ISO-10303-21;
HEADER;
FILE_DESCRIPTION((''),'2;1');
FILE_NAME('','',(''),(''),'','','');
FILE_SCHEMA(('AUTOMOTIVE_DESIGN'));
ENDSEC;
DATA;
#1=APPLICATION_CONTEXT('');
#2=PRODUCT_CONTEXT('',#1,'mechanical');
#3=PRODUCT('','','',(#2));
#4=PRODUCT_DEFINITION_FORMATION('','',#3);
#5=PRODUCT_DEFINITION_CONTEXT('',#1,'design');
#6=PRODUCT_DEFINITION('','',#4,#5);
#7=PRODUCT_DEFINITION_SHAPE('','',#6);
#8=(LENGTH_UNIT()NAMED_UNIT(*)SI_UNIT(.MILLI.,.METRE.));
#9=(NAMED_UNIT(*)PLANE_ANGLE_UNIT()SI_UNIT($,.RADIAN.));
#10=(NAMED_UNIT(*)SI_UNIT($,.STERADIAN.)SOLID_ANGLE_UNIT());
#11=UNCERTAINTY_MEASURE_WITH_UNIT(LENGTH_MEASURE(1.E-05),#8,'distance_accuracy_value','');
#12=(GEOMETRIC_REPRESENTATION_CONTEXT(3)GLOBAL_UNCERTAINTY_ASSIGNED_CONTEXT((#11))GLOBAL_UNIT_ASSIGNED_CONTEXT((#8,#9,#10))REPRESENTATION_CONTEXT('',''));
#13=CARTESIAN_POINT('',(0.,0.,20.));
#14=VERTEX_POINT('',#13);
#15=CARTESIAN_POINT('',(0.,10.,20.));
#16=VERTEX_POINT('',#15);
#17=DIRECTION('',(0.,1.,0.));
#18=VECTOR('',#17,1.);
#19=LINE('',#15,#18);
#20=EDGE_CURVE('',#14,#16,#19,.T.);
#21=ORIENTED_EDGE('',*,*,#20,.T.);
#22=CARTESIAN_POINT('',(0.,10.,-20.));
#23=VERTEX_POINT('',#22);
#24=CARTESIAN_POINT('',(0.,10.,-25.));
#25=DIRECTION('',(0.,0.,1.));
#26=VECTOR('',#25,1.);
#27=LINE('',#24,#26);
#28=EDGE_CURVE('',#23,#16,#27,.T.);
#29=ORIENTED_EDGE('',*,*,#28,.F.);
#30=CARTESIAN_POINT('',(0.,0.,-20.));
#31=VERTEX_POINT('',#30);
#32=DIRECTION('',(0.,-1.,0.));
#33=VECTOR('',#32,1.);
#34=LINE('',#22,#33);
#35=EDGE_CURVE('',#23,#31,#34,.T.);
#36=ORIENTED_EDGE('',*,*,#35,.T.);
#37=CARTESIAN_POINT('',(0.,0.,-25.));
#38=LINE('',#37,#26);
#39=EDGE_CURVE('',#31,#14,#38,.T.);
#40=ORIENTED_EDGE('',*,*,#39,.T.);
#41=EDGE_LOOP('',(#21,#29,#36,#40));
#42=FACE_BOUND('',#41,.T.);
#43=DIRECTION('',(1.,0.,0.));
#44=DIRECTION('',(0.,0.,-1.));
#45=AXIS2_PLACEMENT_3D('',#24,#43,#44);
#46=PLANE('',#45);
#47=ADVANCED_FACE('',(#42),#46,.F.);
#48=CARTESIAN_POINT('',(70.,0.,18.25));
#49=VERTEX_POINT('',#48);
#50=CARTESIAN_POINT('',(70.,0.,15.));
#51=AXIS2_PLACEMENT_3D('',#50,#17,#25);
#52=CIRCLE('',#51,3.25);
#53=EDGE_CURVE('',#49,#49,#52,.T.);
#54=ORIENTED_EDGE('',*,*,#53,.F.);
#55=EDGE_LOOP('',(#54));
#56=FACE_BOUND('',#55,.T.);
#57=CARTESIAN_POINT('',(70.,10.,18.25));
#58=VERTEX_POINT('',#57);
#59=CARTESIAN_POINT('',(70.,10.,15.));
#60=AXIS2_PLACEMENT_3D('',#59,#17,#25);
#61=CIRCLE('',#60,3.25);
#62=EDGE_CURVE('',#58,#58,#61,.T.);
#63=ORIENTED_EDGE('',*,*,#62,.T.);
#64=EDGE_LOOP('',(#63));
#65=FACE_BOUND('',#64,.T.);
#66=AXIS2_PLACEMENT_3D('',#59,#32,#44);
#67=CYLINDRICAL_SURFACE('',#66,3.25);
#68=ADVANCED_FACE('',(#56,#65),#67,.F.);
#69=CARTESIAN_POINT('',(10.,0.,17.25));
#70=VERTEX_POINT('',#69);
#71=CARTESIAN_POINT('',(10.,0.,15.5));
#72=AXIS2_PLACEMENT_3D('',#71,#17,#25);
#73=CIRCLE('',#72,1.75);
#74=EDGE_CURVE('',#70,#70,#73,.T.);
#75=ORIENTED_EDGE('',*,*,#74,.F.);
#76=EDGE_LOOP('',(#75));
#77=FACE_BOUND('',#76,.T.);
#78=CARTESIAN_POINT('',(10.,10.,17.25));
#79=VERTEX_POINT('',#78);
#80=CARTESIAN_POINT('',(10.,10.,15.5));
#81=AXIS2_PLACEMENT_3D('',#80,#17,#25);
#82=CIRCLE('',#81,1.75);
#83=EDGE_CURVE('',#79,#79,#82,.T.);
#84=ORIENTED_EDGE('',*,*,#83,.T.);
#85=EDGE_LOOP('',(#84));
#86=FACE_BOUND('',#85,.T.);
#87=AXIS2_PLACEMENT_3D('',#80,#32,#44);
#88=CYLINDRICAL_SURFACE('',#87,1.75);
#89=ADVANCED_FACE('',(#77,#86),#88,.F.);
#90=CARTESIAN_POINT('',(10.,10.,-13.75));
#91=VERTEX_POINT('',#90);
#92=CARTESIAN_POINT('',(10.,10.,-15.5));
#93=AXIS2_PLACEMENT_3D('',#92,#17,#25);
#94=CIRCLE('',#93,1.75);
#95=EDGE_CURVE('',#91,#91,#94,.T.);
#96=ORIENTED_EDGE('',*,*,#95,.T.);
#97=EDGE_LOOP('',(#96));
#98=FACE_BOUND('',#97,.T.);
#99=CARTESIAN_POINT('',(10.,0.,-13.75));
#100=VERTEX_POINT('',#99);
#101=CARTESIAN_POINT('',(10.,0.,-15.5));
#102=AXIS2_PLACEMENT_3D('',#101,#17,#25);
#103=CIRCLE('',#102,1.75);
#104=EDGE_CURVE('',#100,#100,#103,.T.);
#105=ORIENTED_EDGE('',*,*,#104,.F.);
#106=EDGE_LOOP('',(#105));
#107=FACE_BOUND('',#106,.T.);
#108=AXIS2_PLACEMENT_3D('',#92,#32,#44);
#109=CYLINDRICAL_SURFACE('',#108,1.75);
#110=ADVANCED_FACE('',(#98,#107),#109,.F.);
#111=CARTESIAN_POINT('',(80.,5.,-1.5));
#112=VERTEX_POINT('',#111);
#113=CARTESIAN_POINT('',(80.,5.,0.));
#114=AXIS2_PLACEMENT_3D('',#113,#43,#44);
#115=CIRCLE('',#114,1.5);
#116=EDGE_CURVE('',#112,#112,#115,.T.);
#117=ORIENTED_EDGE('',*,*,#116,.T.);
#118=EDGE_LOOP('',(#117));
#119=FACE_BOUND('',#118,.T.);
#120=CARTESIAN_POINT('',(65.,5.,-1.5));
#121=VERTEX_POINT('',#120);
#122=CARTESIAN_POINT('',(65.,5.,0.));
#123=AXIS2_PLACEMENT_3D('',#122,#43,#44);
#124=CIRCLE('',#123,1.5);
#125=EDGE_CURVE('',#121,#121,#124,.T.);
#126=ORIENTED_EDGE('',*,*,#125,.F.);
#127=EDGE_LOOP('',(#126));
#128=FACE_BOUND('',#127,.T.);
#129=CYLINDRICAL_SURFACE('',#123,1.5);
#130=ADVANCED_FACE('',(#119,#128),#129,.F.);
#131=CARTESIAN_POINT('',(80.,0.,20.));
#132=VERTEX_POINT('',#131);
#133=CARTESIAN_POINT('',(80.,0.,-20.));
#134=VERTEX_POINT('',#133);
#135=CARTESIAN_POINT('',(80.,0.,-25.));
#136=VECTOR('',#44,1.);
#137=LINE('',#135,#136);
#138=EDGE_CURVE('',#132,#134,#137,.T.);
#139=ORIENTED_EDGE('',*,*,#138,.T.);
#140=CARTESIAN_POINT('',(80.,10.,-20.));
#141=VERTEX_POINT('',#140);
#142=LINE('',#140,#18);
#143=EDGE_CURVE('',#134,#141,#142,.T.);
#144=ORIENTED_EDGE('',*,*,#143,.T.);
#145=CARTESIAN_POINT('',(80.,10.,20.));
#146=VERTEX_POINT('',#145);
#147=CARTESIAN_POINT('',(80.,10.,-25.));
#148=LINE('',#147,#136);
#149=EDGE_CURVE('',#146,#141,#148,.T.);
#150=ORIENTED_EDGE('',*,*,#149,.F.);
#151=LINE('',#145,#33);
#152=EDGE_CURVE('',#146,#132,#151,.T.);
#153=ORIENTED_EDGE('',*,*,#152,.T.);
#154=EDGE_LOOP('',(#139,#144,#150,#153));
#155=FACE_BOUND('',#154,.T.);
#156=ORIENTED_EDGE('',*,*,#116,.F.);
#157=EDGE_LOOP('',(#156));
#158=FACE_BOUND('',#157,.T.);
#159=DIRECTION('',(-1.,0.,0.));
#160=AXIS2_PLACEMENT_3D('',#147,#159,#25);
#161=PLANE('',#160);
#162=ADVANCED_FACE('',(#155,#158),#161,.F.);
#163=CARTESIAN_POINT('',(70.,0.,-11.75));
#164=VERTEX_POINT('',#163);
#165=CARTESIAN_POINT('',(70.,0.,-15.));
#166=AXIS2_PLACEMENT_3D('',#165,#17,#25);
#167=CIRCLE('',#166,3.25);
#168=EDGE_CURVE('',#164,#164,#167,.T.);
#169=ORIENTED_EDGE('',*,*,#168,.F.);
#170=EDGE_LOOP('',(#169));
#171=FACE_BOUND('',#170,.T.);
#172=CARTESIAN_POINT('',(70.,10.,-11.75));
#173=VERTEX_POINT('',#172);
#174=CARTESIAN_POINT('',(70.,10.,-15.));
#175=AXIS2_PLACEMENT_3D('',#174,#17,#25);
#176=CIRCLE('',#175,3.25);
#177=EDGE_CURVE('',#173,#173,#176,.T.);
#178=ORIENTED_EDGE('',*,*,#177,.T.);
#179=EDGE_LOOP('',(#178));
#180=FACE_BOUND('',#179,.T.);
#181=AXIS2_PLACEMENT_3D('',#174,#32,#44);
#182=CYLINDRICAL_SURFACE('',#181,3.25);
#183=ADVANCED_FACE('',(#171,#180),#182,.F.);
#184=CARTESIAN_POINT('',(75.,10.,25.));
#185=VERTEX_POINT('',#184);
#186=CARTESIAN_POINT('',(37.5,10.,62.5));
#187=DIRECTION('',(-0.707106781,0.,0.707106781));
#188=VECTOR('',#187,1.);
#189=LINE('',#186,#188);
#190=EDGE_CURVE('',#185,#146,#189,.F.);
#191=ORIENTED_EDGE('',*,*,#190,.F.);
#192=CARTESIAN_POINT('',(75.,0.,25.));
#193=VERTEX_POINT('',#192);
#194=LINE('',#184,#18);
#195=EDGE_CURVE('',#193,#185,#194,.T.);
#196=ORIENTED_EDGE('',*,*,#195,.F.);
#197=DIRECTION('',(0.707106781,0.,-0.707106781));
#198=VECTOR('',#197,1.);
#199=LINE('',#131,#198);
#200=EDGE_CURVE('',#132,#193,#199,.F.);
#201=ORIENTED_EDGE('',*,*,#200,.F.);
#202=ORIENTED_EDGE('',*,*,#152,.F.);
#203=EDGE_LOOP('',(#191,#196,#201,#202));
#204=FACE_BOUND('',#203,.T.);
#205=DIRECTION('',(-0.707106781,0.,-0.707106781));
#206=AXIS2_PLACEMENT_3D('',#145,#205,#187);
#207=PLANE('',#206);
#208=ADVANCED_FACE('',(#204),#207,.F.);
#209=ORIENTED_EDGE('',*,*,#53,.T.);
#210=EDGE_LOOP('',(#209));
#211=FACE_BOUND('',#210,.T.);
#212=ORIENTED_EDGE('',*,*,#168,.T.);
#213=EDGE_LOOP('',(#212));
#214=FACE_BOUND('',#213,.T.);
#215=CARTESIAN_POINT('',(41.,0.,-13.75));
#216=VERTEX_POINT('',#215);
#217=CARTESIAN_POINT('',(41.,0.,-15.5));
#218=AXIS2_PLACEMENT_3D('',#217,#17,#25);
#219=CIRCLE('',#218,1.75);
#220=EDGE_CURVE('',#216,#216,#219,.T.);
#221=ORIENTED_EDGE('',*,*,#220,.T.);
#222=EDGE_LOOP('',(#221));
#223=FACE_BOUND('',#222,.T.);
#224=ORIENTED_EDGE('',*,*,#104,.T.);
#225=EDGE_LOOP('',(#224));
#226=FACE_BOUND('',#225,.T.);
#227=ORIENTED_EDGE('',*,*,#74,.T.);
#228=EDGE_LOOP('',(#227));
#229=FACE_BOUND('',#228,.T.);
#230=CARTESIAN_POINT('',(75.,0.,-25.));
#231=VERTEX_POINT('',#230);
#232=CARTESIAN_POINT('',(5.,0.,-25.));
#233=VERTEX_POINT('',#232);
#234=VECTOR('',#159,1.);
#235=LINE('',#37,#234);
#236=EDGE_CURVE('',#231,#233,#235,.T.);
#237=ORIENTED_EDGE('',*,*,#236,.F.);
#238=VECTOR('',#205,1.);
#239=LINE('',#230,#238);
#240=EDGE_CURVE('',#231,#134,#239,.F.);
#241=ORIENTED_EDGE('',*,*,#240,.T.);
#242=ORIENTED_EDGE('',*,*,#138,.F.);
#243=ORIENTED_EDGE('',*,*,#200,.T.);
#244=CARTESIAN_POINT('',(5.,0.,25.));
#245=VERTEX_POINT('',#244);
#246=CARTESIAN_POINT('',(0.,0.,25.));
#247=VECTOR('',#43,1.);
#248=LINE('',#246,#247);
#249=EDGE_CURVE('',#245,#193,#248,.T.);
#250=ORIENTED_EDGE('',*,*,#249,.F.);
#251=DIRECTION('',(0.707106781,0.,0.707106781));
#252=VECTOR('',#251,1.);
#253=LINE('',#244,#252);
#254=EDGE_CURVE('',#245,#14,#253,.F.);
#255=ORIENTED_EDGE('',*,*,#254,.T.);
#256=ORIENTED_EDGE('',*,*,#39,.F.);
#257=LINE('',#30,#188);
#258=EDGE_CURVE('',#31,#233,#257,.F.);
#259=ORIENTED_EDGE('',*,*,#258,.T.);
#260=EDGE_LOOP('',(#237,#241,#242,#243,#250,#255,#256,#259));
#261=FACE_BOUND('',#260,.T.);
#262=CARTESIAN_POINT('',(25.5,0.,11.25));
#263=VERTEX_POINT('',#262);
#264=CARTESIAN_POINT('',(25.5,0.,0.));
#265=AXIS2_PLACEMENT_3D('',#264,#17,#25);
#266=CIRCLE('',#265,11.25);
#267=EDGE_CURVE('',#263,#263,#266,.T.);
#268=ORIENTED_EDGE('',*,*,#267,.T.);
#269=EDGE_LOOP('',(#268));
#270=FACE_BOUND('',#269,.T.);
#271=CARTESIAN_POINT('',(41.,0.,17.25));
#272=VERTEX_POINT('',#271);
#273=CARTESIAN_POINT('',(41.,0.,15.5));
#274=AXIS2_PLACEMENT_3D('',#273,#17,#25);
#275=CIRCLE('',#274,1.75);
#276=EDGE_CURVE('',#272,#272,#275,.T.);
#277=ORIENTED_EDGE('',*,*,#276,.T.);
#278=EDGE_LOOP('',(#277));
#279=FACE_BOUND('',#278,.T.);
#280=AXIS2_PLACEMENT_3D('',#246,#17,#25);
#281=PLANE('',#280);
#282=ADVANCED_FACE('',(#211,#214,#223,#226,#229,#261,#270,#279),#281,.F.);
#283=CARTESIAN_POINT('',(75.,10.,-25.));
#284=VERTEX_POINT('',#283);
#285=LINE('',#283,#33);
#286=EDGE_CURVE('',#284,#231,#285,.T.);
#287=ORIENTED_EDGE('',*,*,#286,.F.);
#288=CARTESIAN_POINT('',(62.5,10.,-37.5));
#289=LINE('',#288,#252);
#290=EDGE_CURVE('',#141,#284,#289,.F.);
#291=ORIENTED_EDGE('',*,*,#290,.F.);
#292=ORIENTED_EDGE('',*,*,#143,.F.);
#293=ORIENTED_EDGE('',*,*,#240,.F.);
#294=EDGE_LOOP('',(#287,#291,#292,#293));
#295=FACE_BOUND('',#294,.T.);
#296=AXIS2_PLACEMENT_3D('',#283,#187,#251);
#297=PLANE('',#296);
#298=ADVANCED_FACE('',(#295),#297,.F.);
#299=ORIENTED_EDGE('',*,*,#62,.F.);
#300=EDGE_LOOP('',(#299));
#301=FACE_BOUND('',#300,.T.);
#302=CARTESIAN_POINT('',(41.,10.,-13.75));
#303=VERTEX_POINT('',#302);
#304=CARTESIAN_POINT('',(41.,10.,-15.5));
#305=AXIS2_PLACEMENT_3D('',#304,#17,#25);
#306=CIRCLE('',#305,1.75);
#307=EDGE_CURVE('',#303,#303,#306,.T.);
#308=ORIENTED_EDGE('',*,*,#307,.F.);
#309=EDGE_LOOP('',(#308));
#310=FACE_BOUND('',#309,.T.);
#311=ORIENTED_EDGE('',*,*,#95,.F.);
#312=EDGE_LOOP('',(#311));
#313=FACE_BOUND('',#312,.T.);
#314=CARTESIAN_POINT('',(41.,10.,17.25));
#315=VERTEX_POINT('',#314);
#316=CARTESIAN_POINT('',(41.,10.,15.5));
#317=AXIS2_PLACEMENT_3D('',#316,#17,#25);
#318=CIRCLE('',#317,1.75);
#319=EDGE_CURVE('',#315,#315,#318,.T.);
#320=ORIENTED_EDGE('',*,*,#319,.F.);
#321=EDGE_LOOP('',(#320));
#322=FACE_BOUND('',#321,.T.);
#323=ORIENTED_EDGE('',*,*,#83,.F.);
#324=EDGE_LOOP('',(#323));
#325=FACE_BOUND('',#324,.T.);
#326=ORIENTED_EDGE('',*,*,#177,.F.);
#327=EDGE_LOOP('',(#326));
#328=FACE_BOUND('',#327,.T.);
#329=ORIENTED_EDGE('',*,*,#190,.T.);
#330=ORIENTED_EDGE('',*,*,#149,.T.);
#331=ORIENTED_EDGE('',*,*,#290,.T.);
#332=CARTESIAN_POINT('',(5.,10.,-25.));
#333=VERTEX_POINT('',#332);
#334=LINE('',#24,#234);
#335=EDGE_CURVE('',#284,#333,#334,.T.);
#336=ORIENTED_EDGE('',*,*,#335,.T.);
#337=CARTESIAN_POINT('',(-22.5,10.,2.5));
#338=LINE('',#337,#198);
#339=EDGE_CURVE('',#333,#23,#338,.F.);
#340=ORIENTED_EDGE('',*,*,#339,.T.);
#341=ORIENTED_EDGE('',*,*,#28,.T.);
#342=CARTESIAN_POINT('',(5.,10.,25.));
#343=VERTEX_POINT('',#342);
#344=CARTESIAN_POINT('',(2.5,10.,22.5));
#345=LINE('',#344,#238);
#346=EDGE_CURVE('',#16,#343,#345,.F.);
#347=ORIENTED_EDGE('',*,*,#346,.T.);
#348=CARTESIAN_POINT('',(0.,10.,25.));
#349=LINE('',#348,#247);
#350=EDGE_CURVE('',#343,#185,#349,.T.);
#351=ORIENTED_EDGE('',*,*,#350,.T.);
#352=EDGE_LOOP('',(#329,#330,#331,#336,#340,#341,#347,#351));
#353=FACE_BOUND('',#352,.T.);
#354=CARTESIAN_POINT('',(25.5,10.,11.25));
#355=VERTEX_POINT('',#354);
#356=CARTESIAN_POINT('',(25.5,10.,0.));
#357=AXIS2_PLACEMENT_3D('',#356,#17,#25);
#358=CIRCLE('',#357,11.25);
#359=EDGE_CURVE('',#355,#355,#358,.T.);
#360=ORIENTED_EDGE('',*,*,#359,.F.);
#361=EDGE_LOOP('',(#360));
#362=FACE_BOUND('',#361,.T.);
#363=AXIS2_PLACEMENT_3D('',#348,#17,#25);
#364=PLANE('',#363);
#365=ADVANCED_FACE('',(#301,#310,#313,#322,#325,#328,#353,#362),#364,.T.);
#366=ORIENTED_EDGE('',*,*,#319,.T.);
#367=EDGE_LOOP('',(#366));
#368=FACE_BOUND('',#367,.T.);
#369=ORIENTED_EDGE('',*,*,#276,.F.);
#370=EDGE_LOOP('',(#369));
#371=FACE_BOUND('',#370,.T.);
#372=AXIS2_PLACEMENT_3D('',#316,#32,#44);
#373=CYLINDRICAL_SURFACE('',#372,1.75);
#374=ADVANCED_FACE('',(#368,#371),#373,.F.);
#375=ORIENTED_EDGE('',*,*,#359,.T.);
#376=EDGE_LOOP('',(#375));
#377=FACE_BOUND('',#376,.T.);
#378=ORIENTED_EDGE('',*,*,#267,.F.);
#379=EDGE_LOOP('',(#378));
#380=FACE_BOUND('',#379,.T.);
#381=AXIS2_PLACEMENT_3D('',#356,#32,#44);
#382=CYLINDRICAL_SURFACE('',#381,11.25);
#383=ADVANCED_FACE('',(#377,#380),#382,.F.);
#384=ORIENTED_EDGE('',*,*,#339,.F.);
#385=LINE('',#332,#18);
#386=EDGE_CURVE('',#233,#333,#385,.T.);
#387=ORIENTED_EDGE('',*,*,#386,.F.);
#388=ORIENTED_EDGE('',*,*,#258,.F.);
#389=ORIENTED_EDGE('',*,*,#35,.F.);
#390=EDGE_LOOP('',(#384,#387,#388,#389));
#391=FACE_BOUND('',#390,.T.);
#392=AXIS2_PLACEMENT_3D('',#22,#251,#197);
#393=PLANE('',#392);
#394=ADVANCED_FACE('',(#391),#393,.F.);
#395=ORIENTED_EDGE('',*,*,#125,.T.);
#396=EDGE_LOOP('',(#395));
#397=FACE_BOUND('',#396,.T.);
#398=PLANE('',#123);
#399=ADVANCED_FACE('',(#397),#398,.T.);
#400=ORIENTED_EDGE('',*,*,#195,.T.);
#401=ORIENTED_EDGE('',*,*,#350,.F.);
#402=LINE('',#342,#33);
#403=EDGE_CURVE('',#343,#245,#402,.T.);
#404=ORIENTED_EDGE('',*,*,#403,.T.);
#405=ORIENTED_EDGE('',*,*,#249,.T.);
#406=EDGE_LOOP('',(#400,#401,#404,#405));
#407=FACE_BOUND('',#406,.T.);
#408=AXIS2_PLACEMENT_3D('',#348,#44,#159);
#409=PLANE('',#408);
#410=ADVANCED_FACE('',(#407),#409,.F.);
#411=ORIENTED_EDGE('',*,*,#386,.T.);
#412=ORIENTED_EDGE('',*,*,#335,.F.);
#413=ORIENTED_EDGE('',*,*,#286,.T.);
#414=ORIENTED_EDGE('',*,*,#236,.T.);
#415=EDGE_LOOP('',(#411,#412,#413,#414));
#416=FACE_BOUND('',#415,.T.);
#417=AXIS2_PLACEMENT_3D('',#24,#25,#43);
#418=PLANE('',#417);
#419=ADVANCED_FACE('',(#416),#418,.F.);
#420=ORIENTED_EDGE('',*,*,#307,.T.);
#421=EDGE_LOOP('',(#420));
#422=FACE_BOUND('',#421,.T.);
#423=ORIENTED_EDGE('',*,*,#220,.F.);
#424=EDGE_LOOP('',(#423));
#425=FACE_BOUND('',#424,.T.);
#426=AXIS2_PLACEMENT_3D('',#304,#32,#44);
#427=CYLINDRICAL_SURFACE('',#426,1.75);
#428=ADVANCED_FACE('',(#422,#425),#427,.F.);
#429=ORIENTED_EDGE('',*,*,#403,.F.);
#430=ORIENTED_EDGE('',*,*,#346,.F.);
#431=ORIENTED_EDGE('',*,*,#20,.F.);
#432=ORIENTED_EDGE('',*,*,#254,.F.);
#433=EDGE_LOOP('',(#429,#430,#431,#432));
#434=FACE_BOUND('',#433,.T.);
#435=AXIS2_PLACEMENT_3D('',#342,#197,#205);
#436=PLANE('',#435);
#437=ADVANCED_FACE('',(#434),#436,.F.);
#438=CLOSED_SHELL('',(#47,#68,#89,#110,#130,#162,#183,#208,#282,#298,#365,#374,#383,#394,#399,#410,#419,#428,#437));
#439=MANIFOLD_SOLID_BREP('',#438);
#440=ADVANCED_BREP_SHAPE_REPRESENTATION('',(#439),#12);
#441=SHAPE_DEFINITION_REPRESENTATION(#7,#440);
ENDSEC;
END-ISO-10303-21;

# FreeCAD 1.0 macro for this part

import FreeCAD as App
import Part
import Sketcher

V = App.Vector


def edges_at(feature, points):
    """Names of the edges that pass closest to the given points."""
    edges = feature.Shape.Edges
    near = lambda p: min(range(len(edges)), key=lambda i: edges[i].distToShape(Part.Vertex(*p))[0])
    return sorted({f"Edge{near(p) + 1}" for p in points})

doc = App.newDocument("Part")
body = doc.addObject("PartDesign::Body", "Body")

# Sketch on XZ plane
sketch1 = doc.addObject("Sketcher::SketchObject", "Sketch")
body.addObject(sketch1)
sketch1.AttachmentSupport = (doc.XZ_Plane, [""])
sketch1.MapMode = "FlatFace"
sketch1.addGeometry(Part.LineSegment(V(0, -25, 0), V(0, 25, 0)), False)
sketch1.addGeometry(Part.LineSegment(V(0, 25, 0), V(80, 25, 0)), False)
sketch1.addGeometry(Part.LineSegment(V(80, 25, 0), V(80, -25, 0)), False)
sketch1.addGeometry(Part.LineSegment(V(80, -25, 0), V(0, -25, 0)), False)
sketch1.addGeometry(Part.Circle(V(10, 15.5, 0), V(0, 0, 1), 1.8), False)
sketch1.addGeometry(Part.Circle(V(41, 15.5, 0), V(0, 0, 1), 1.8), False)
sketch1.addGeometry(Part.Circle(V(70, 15, 0), V(0, 0, 1), 3.2), False)
sketch1.addGeometry(Part.Circle(V(25.5, 0, 0), V(0, 0, 1), 11.2), False)
sketch1.addGeometry(Part.Circle(V(10, -15.5, 0), V(0, 0, 1), 1.8), False)
sketch1.addGeometry(Part.Circle(V(41, -15.5, 0), V(0, 0, 1), 1.8), False)
sketch1.addGeometry(Part.Circle(V(70, -15, 0), V(0, 0, 1), 3.2), False)
sketch1.addConstraint(Sketcher.Constraint("Coincident", 0, 2, 1, 1))
sketch1.addConstraint(Sketcher.Constraint("Coincident", 1, 2, 2, 1))
sketch1.addConstraint(Sketcher.Constraint("Coincident", 2, 2, 3, 1))
sketch1.addConstraint(Sketcher.Constraint("Coincident", 3, 2, 0, 1))
sketch1.addConstraint(Sketcher.Constraint("Vertical", 0))
sketch1.addConstraint(Sketcher.Constraint("Horizontal", 1))
sketch1.addConstraint(Sketcher.Constraint("Vertical", 2))
sketch1.addConstraint(Sketcher.Constraint("Horizontal", 3))
sketch1.addConstraint(Sketcher.Constraint("Equal", 4, 5))
sketch1.addConstraint(Sketcher.Constraint("Equal", 5, 8))
sketch1.addConstraint(Sketcher.Constraint("Equal", 8, 9))
sketch1.addConstraint(Sketcher.Constraint("Equal", 6, 10))
sketch1.addConstraint(Sketcher.Constraint("Symmetric", 0, 2, 3, 2, -1, 1))
sketch1.addConstraint(Sketcher.Constraint("Symmetric", 4, 3, 8, 3, -1))
sketch1.addConstraint(Sketcher.Constraint("Symmetric", 5, 3, 9, 3, -1))
sketch1.addConstraint(Sketcher.Constraint("Symmetric", 6, 3, 10, 3, -1))
sketch1.addConstraint(Sketcher.Constraint("PointOnObject", 7, 3, -1))
sketch1.addConstraint(Sketcher.Constraint("Horizontal", 4, 3, 5, 3))
sketch1.addConstraint(Sketcher.Constraint("Diameter", 4, 3.5))
sketch1.addConstraint(Sketcher.Constraint("Diameter", 6, 6.5))
sketch1.addConstraint(Sketcher.Constraint("Diameter", 7, 22.5))
sketch1.addConstraint(Sketcher.Constraint("DistanceX", 1, 1, 1, 2, 80.0))
sketch1.addConstraint(Sketcher.Constraint("DistanceY", 0, 1, 0, 2, 50.0))
sketch1.addConstraint(Sketcher.Constraint("DistanceX", -1, 1, 4, 3, 10.0))
sketch1.addConstraint(Sketcher.Constraint("DistanceX", -1, 1, 5, 3, 41.0))
sketch1.addConstraint(Sketcher.Constraint("DistanceX", -1, 1, 6, 3, 70.0))
sketch1.addConstraint(Sketcher.Constraint("DistanceY", -1, 1, 6, 3, 15.0))
sketch1.addConstraint(Sketcher.Constraint("DistanceY", 8, 3, 4, 3, 31.0))
sketch1.addConstraint(Sketcher.Constraint("DistanceX", -1, 1, 7, 3, 25.5))
pad1 = doc.addObject("PartDesign::Pad", "Pad")
body.addObject(pad1)
pad1.Profile = sketch1
pad1.Length = 10
pad1.Reversed = True

# Sketch on YZ plane
sketch2 = doc.addObject("Sketcher::SketchObject", "Sketch001")
body.addObject(sketch2)
sketch2.AttachmentSupport = (doc.YZ_Plane, [""])
sketch2.MapMode = "FlatFace"
sketch2.AttachmentOffset = App.Placement(V(0, 0, 80), App.Rotation())
sketch2.addGeometry(Part.Circle(V(5, 0, 0), V(0, 0, 1), 1.5), False)
sketch2.addConstraint(Sketcher.Constraint("PointOnObject", 0, 3, -1))
sketch2.addConstraint(Sketcher.Constraint("Diameter", 0, 3.0))
sketch2.addConstraint(Sketcher.Constraint("DistanceX", -1, 1, 0, 3, 5.0))
pocket1 = doc.addObject("PartDesign::Pocket", "Pocket")
body.addObject(pocket1)
pocket1.Profile = sketch2
pocket1.Length = 15
doc.recompute()

chamfer = doc.addObject("PartDesign::Chamfer", "Chamfer")
body.addObject(chamfer)
chamfer.Base = (pocket1, edges_at(pocket1, [
    (0, 5, -25),
    (80, 5, -25),
    (80, 5, 25),
    (0, 5, 25),
]))
chamfer.Size = 5

doc.recompute()
